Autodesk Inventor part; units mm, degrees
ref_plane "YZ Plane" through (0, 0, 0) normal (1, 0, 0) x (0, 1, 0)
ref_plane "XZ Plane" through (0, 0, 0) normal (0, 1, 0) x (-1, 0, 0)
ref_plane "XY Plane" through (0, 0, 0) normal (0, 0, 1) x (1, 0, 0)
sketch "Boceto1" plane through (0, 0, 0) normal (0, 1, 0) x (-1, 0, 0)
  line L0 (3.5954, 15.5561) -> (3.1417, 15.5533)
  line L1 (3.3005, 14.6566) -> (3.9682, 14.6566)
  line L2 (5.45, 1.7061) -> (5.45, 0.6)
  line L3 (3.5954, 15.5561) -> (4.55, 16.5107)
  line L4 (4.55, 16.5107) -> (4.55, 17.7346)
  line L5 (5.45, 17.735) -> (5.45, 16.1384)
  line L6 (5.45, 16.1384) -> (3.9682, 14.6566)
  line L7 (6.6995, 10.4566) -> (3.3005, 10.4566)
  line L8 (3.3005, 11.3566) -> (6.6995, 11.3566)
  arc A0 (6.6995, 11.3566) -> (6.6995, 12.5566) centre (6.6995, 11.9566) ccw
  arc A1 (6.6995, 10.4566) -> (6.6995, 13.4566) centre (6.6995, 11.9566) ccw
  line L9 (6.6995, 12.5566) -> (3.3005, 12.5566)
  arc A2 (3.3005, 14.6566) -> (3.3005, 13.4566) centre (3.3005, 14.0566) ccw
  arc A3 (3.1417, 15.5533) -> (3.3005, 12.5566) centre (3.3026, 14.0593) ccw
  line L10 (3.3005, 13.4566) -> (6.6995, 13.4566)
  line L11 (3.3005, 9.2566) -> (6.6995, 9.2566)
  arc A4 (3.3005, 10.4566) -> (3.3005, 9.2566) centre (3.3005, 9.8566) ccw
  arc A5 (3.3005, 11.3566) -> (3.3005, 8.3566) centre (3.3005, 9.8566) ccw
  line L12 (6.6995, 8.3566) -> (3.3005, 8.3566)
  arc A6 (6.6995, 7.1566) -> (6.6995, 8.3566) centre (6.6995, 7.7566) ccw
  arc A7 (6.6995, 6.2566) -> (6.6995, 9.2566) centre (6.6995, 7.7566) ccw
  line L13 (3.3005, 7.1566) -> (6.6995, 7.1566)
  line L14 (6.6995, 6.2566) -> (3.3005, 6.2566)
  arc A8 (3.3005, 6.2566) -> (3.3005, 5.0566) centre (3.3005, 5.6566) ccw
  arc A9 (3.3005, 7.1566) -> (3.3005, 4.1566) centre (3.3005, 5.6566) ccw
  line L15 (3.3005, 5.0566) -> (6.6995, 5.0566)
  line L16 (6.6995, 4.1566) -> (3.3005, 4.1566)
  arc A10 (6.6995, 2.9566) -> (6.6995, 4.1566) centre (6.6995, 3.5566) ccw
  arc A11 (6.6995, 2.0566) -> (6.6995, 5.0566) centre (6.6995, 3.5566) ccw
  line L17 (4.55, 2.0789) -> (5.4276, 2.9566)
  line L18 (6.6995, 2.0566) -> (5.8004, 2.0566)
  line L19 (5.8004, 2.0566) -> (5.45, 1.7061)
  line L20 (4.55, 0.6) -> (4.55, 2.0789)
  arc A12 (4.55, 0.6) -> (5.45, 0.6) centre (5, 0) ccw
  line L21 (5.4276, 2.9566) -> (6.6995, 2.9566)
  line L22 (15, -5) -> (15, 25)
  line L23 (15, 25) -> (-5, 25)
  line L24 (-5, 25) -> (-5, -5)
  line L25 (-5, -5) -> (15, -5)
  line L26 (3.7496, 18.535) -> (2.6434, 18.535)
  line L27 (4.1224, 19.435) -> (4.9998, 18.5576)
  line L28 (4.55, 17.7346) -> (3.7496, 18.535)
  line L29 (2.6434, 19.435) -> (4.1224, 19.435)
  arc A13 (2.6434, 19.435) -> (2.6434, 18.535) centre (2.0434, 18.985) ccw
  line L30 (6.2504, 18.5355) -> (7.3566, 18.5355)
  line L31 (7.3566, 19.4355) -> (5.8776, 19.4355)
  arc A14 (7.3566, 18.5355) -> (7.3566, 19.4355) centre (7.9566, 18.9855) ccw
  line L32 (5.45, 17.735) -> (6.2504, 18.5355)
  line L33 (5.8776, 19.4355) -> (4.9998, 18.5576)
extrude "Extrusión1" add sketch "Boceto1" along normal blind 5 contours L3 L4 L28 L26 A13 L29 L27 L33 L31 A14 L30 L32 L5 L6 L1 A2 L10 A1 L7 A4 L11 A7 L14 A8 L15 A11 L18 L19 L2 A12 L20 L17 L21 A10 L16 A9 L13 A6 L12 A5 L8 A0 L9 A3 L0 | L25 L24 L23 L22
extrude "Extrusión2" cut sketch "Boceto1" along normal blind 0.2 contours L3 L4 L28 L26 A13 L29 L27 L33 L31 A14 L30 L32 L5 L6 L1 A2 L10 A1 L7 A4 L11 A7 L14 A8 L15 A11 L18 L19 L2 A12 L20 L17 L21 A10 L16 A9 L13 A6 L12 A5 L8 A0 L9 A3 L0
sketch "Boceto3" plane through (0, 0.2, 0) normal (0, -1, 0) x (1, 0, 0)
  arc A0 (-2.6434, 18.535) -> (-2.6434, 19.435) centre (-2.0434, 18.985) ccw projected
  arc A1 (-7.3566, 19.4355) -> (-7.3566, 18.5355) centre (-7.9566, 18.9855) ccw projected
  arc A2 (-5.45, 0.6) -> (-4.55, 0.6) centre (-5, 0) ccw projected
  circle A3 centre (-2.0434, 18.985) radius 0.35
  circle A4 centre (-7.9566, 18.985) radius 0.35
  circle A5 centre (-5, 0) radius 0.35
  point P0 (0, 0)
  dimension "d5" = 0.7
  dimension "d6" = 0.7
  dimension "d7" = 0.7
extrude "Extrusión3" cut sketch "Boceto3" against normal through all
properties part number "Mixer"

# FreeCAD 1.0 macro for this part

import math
import FreeCAD as App
import Part
import Sketcher
Q = App.Units.Quantity

doc = App.newDocument("Part")
body = doc.addObject("PartDesign::Body", "Body")

sketch1 = body.newObject("Sketcher::SketchObject", "Sketch")
sketch1.AttachmentSupport = (doc.getObject("XZ_Plane"), [""])
sketch1.MapMode = "FlatFace"
sketch1.addGeometry([
    Part.LineSegment(App.Vector(5, -5, 0), App.Vector(-15, -5, 0)),
    Part.LineSegment(App.Vector(-15, -5, 0), App.Vector(-15, 25, 0)),
    Part.LineSegment(App.Vector(-15, 25, 0), App.Vector(5, 25, 0)),
    Part.LineSegment(App.Vector(5, 25, 0), App.Vector(5, -5, 0)),
], False)
sketch1.addConstraint([
    Sketcher.Constraint("Coincident", 0, 2, 1, 1),
    Sketcher.Constraint("Coincident", 1, 2, 2, 1),
    Sketcher.Constraint("Coincident", 2, 2, 3, 1),
    Sketcher.Constraint("Coincident", 3, 2, 0, 1),
    Sketcher.Constraint("Horizontal", 0),
    Sketcher.Constraint("Vertical", 1),
    Sketcher.Constraint("Horizontal", 2),
    Sketcher.Constraint("Vertical", 3),
    Sketcher.Constraint("DistanceX", 0, 2, 0, 1, 20.0),
    Sketcher.Constraint("DistanceY", 1, 1, 1, 2, 30.0),
    Sketcher.Constraint("DistanceX", 0, 2, -1, 1, 15.0),
    Sketcher.Constraint("DistanceY", 0, 2, -1, 1, 5.0),
])
pad1 = body.newObject("PartDesign::Pad", "Pad")
pad1.Profile = sketch1
pad1.Length = 5
pad1.Reversed = True

sketch2 = body.newObject("Sketcher::SketchObject", "Sketch001")
sketch2.AttachmentSupport = (doc.getObject("XZ_Plane"), [""])
sketch2.MapMode = "FlatFace"
sketch2.addGeometry([
    Part.LineSegment(App.Vector(-4.55, 16.51, 0), App.Vector(-3.6, 15.56, 0)),
    Part.LineSegment(App.Vector(-3.6, 15.56, 0), App.Vector(-3.14, 15.55, 0)),
    Part.ArcOfCircle(Part.Circle(App.Vector(-3.3, 14.06, 0), App.Vector(0, 0, 1), 1.5), math.radians(-90), math.radians(84)),
    Part.LineSegment(App.Vector(-3.3, 12.56, 0), App.Vector(-6.7, 12.56, 0)),
    Part.ArcOfCircle(Part.Circle(App.Vector(-6.7, 11.96, 0), App.Vector(0, 0, 1), 0.6), math.radians(90), math.radians(270)),
    Part.LineSegment(App.Vector(-6.7, 11.36, 0), App.Vector(-3.3, 11.36, 0)),
    Part.ArcOfCircle(Part.Circle(App.Vector(-3.3, 9.86, 0), App.Vector(0, 0, 1), 1.5), math.radians(-90), math.radians(90)),
    Part.LineSegment(App.Vector(-3.3, 8.36, 0), App.Vector(-6.7, 8.36, 0)),
    Part.ArcOfCircle(Part.Circle(App.Vector(-6.7, 7.76, 0), App.Vector(0, 0, 1), 0.6), math.radians(90), math.radians(270)),
    Part.LineSegment(App.Vector(-6.7, 7.16, 0), App.Vector(-3.3, 7.16, 0)),
    Part.ArcOfCircle(Part.Circle(App.Vector(-3.3, 5.66, 0), App.Vector(0, 0, 1), 1.5), math.radians(-90), math.radians(90)),
    Part.LineSegment(App.Vector(-3.3, 4.16, 0), App.Vector(-6.7, 4.16, 0)),
    Part.ArcOfCircle(Part.Circle(App.Vector(-6.7, 3.56, 0), App.Vector(0, 0, 1), 0.6), math.radians(90), math.radians(270)),
    Part.LineSegment(App.Vector(-6.7, 2.96, 0), App.Vector(-5.43, 2.96, 0)),
    Part.LineSegment(App.Vector(-5.43, 2.96, 0), App.Vector(-4.55, 2.08, 0)),
    Part.LineSegment(App.Vector(-4.55, 2.08, 0), App.Vector(-4.55, 0.6, 0)),
    Part.ArcOfCircle(Part.Circle(App.Vector(-5, 0, 0), App.Vector(0, 0, 1), 0.75), math.radians(127), math.radians(413)),
    Part.LineSegment(App.Vector(-5.45, 0.6, 0), App.Vector(-5.45, 1.71, 0)),
    Part.LineSegment(App.Vector(-5.45, 1.71, 0), App.Vector(-5.8, 2.06, 0)),
    Part.LineSegment(App.Vector(-5.8, 2.06, 0), App.Vector(-6.7, 2.06, 0)),
    Part.ArcOfCircle(Part.Circle(App.Vector(-6.7, 3.56, 0), App.Vector(0, 0, 1), 1.5), math.radians(90), math.radians(270)),
    Part.LineSegment(App.Vector(-6.7, 5.06, 0), App.Vector(-3.3, 5.06, 0)),
    Part.ArcOfCircle(Part.Circle(App.Vector(-3.3, 5.66, 0), App.Vector(0, 0, 1), 0.6), math.radians(-90), math.radians(90)),
    Part.LineSegment(App.Vector(-3.3, 6.26, 0), App.Vector(-6.7, 6.26, 0)),
    Part.ArcOfCircle(Part.Circle(App.Vector(-6.7, 7.76, 0), App.Vector(0, 0, 1), 1.5), math.radians(90), math.radians(270)),
    Part.LineSegment(App.Vector(-6.7, 9.26, 0), App.Vector(-3.3, 9.26, 0)),
    Part.ArcOfCircle(Part.Circle(App.Vector(-3.3, 9.86, 0), App.Vector(0, 0, 1), 0.6), math.radians(-90), math.radians(90)),
    Part.LineSegment(App.Vector(-3.3, 10.46, 0), App.Vector(-6.7, 10.46, 0)),
    Part.ArcOfCircle(Part.Circle(App.Vector(-6.7, 11.96, 0), App.Vector(0, 0, 1), 1.5), math.radians(90), math.radians(270)),
    Part.LineSegment(App.Vector(-6.7, 13.46, 0), App.Vector(-3.3, 13.46, 0)),
    Part.ArcOfCircle(Part.Circle(App.Vector(-3.3, 14.06, 0), App.Vector(0, 0, 1), 0.6), math.radians(-90), math.radians(90)),
    Part.LineSegment(App.Vector(-3.3, 14.66, 0), App.Vector(-3.97, 14.66, 0)),
    Part.LineSegment(App.Vector(-3.97, 14.66, 0), App.Vector(-5.45, 16.14, 0)),
    Part.LineSegment(App.Vector(-5.45, 16.14, 0), App.Vector(-5.45, 17.73, 0)),
    Part.LineSegment(App.Vector(-5.45, 17.73, 0), App.Vector(-6.25, 18.54, 0)),
    Part.LineSegment(App.Vector(-6.25, 18.54, 0), App.Vector(-7.36, 18.54, 0)),
    Part.ArcOfCircle(Part.Circle(App.Vector(-7.96, 18.99, 0), App.Vector(0, 0, 1), 0.75), math.radians(37), math.radians(323)),
    Part.LineSegment(App.Vector(-7.36, 19.44, 0), App.Vector(-5.88, 19.44, 0)),
    Part.LineSegment(App.Vector(-5.88, 19.44, 0), App.Vector(-5, 18.56, 0)),
    Part.LineSegment(App.Vector(-5, 18.56, 0), App.Vector(-4.12, 19.43, 0)),
    Part.LineSegment(App.Vector(-4.12, 19.43, 0), App.Vector(-2.64, 19.43, 0)),
    Part.ArcOfCircle(Part.Circle(App.Vector(-2.04, 18.98, 0), App.Vector(0, 0, 1), 0.75), math.radians(-143), math.radians(143)),
    Part.LineSegment(App.Vector(-2.64, 18.54, 0), App.Vector(-3.75, 18.54, 0)),
    Part.LineSegment(App.Vector(-3.75, 18.54, 0), App.Vector(-4.55, 17.73, 0)),
    Part.LineSegment(App.Vector(-4.55, 17.73, 0), App.Vector(-4.55, 16.51, 0)),
], False)
sketch2.addConstraint([
    Sketcher.Constraint("Coincident", 0, 2, 1, 1),
    Sketcher.Constraint("Coincident", 1, 2, 2, 2),
    Sketcher.Constraint("Coincident", 2, 1, 3, 1),
    Sketcher.Constraint("Tangent", 3, 2, 4, 1),
    Sketcher.Constraint("Tangent", 4, 2, 5, 1),
    Sketcher.Constraint("Tangent", 5, 2, 6, 2),
    Sketcher.Constraint("Tangent", 6, 1, 7, 1),
    Sketcher.Constraint("Tangent", 7, 2, 8, 1),
    Sketcher.Constraint("Tangent", 8, 2, 9, 1),
    Sketcher.Constraint("Tangent", 9, 2, 10, 2),
    Sketcher.Constraint("Tangent", 10, 1, 11, 1),
    Sketcher.Constraint("Tangent", 11, 2, 12, 1),
    Sketcher.Constraint("Tangent", 12, 2, 13, 1),
    Sketcher.Constraint("Coincident", 13, 2, 14, 1),
    Sketcher.Constraint("Coincident", 14, 2, 15, 1),
    Sketcher.Constraint("Coincident", 15, 2, 16, 2),
    Sketcher.Constraint("Coincident", 16, 1, 17, 1),
    Sketcher.Constraint("Coincident", 17, 2, 18, 1),
    Sketcher.Constraint("Coincident", 18, 2, 19, 1),
    Sketcher.Constraint("Tangent", 19, 2, 20, 2),
    Sketcher.Constraint("Tangent", 20, 1, 21, 1),
    Sketcher.Constraint("Tangent", 21, 2, 22, 1),
    Sketcher.Constraint("Tangent", 22, 2, 23, 1),
    Sketcher.Constraint("Tangent", 23, 2, 24, 2),
    Sketcher.Constraint("Tangent", 24, 1, 25, 1),
    Sketcher.Constraint("Tangent", 25, 2, 26, 1),
    Sketcher.Constraint("Tangent", 26, 2, 27, 1),
    Sketcher.Constraint("Tangent", 27, 2, 28, 2),
    Sketcher.Constraint("Tangent", 28, 1, 29, 1),
    Sketcher.Constraint("Tangent", 29, 2, 30, 1),
    Sketcher.Constraint("Tangent", 30, 2, 31, 1),
    Sketcher.Constraint("Coincident", 31, 2, 32, 1),
    Sketcher.Constraint("Coincident", 32, 2, 33, 1),
    Sketcher.Constraint("Coincident", 33, 2, 34, 1),
    Sketcher.Constraint("Coincident", 34, 2, 35, 1),
    Sketcher.Constraint("Coincident", 35, 2, 36, 2),
    Sketcher.Constraint("Coincident", 36, 1, 37, 1),
    Sketcher.Constraint("Coincident", 37, 2, 38, 1),
    Sketcher.Constraint("Coincident", 38, 2, 39, 1),
    Sketcher.Constraint("Coincident", 39, 2, 40, 1),
    Sketcher.Constraint("Coincident", 40, 2, 41, 2),
    Sketcher.Constraint("Coincident", 41, 1, 42, 1),
    Sketcher.Constraint("Coincident", 42, 2, 43, 1),
    Sketcher.Constraint("Coincident", 43, 2, 44, 1),
    Sketcher.Constraint("Coincident", 44, 2, 0, 1),
    Sketcher.Constraint("Horizontal", 3),
    Sketcher.Constraint("Horizontal", 5),
    Sketcher.Constraint("Horizontal", 7),
    Sketcher.Constraint("Horizontal", 9),
    Sketcher.Constraint("Horizontal", 11),
    Sketcher.Constraint("Horizontal", 13),
    Sketcher.Constraint("Vertical", 15),
    Sketcher.Constraint("Vertical", 17),
    Sketcher.Constraint("Horizontal", 19),
    Sketcher.Constraint("Horizontal", 21),
    Sketcher.Constraint("Horizontal", 23),
    Sketcher.Constraint("Horizontal", 25),
    Sketcher.Constraint("Horizontal", 27),
    Sketcher.Constraint("Horizontal", 29),
    Sketcher.Constraint("Horizontal", 31),
    Sketcher.Constraint("Vertical", 33),
    Sketcher.Constraint("Horizontal", 35),
    Sketcher.Constraint("Horizontal", 37),
    Sketcher.Constraint("Horizontal", 40),
    Sketcher.Constraint("Horizontal", 42),
    Sketcher.Constraint("Vertical", 44),
    Sketcher.Constraint("Coincident", 20, 3, 12, 3),
    Sketcher.Constraint("Coincident", 22, 3, 10, 3),
    Sketcher.Constraint("Coincident", 24, 3, 8, 3),
    Sketcher.Constraint("Coincident", 26, 3, 6, 3),
    Sketcher.Constraint("Coincident", 28, 3, 4, 3),
    Sketcher.Constraint("Equal", 4, 8),
    Sketcher.Constraint("Equal", 6, 10),
    Sketcher.Constraint("Equal", 8, 12),
    Sketcher.Constraint("Equal", 10, 20),
    Sketcher.Constraint("Equal", 26, 30),
    Sketcher.Constraint("Equal", 16, 36),
    Sketcher.Constraint("Equal", 36, 41),
    Sketcher.Constraint("PointOnObject", 16, 3, -1),
    Sketcher.Constraint("Parallel", 0, 14),
    Sketcher.Constraint("Parallel", 14, 18),
    Sketcher.Constraint("Parallel", 18, 32),
    Sketcher.Constraint("Parallel", 32, 34),
    Sketcher.Constraint("Parallel", 34, 38),
    Sketcher.Constraint("Perpendicular", 38, 39),
    Sketcher.Constraint("Parallel", 39, 43),
    Sketcher.Constraint("Horizontal", 15, 2, 16, 1),
    Sketcher.Constraint("Vertical", 4, 3, 8, 3),
    Sketcher.Constraint("Vertical", 6, 3, 10, 3),
    Sketcher.Constraint("Vertical", 8, 3, 12, 3),
    Sketcher.Constraint("Vertical", 26, 3, 30, 3),
    Sketcher.Constraint("Vertical", 30, 3, 2, 1),
    Sketcher.Constraint("Vertical", 17, 2, 32, 2),
    Sketcher.Constraint("Vertical", 35, 2, 36, 1),
    Sketcher.Constraint("Vertical", 40, 2, 41, 1),
    Sketcher.Constraint("Vertical", 15, 2, 43, 2),
    Sketcher.Constraint("Equal", 37, 40),
    Sketcher.Constraint("Equal", 35, 42),
    Sketcher.Constraint("Equal", 40, 15),
    Sketcher.Constraint("Equal", 42, 17),
    Sketcher.Constraint("Equal", 34, 43),
    Sketcher.Constraint("Radius", 4, 0.6),
    Sketcher.Constraint("Radius", 6, 1.5),
    Sketcher.Constraint("Angle", 0, Q("-45 deg")),
    Sketcher.Constraint("Radius", 16, 0.75),
    Sketcher.Constraint("DistanceX", 16, 3, -1, 1, 5.0),
    Sketcher.Constraint("DistanceY", -1, 1, 15, 2, 0.6),
    Sketcher.Constraint("Radius", 2, 1.5026),
    Sketcher.Constraint("DistanceX", 36, 3, 35, 2, 0.6),
    Sketcher.Constraint("DistanceY", 33, 2, 39, 2, 1.7),
    Sketcher.Constraint("DistanceX", 40, 2, 41, 3, 0.6),
    Sketcher.Constraint("Distance", 0, 1.35),
    Sketcher.Constraint("DistanceX", 3, 2, 3, 1, 3.399),
    Sketcher.Constraint("DistanceX", 13, 1, 13, 2, 1.272),
    Sketcher.Constraint("DistanceX", 19, 2, 19, 1, 0.899),
    Sketcher.Constraint("DistanceX", 37, 1, 37, 2, 1.479),
    Sketcher.Constraint("DistanceY", 44, 2, 44, 1, 1.224),
    Sketcher.Constraint("Distance", 34, 1.132),
    Sketcher.Constraint("DistanceX", 31, 2, 31, 1, 0.6677),
    Sketcher.Constraint("DistanceY", 33, 1, 33, 2, 1.5966),
    Sketcher.Constraint("DistanceX", 4, 3, 2, 3, 3.397),
    Sketcher.Constraint("DistanceX", 36, 3, 2, 3, 4.654),
    Sketcher.Constraint("DistanceX", 2, 3, 1, 2, 0.161),
])
pocket1 = body.newObject("PartDesign::Pocket", "Pocket")
pocket1.Profile = sketch2
pocket1.Length = 0.2

sketch3 = body.newObject("Sketcher::SketchObject", "Sketch002")
sketch3.AttachmentSupport = (doc.getObject("XZ_Plane"), [""])
sketch3.MapMode = "FlatFace"
sketch3.AttachmentOffset = App.Placement(App.Vector(0, 0, -0.2), App.Rotation())
sketch3.addGeometry([
    Part.Circle(App.Vector(-2.04, 18.98, 0), App.Vector(0, 0, 1), 0.35),
    Part.Circle(App.Vector(-7.96, 18.98, 0), App.Vector(0, 0, 1), 0.35),
    Part.Circle(App.Vector(-5, 0, 0), App.Vector(0, 0, 1), 0.35),
], False)
sketch3.addConstraint([
    Sketcher.Constraint("Equal", 0, 1),
    Sketcher.Constraint("Equal", 1, 2),
    Sketcher.Constraint("PointOnObject", 2, 3, -1),
    Sketcher.Constraint("Horizontal", 0, 3, 1, 3),
    Sketcher.Constraint("Diameter", 0, 0.7),
    Sketcher.Constraint("DistanceX", 2, 3, -1, 1, 5.0),
    Sketcher.Constraint("DistanceY", -1, 1, 0, 3, 18.985),
    Sketcher.Constraint("DistanceX", 0, 3, -1, 1, 2.0434),
    Sketcher.Constraint("DistanceX", 1, 3, -1, 1, 7.9566),
])
pocket2 = body.newObject("PartDesign::Pocket", "Pocket001")
pocket2.Profile = sketch3
pocket2.Type = "ThroughAll"

doc.recompute()
